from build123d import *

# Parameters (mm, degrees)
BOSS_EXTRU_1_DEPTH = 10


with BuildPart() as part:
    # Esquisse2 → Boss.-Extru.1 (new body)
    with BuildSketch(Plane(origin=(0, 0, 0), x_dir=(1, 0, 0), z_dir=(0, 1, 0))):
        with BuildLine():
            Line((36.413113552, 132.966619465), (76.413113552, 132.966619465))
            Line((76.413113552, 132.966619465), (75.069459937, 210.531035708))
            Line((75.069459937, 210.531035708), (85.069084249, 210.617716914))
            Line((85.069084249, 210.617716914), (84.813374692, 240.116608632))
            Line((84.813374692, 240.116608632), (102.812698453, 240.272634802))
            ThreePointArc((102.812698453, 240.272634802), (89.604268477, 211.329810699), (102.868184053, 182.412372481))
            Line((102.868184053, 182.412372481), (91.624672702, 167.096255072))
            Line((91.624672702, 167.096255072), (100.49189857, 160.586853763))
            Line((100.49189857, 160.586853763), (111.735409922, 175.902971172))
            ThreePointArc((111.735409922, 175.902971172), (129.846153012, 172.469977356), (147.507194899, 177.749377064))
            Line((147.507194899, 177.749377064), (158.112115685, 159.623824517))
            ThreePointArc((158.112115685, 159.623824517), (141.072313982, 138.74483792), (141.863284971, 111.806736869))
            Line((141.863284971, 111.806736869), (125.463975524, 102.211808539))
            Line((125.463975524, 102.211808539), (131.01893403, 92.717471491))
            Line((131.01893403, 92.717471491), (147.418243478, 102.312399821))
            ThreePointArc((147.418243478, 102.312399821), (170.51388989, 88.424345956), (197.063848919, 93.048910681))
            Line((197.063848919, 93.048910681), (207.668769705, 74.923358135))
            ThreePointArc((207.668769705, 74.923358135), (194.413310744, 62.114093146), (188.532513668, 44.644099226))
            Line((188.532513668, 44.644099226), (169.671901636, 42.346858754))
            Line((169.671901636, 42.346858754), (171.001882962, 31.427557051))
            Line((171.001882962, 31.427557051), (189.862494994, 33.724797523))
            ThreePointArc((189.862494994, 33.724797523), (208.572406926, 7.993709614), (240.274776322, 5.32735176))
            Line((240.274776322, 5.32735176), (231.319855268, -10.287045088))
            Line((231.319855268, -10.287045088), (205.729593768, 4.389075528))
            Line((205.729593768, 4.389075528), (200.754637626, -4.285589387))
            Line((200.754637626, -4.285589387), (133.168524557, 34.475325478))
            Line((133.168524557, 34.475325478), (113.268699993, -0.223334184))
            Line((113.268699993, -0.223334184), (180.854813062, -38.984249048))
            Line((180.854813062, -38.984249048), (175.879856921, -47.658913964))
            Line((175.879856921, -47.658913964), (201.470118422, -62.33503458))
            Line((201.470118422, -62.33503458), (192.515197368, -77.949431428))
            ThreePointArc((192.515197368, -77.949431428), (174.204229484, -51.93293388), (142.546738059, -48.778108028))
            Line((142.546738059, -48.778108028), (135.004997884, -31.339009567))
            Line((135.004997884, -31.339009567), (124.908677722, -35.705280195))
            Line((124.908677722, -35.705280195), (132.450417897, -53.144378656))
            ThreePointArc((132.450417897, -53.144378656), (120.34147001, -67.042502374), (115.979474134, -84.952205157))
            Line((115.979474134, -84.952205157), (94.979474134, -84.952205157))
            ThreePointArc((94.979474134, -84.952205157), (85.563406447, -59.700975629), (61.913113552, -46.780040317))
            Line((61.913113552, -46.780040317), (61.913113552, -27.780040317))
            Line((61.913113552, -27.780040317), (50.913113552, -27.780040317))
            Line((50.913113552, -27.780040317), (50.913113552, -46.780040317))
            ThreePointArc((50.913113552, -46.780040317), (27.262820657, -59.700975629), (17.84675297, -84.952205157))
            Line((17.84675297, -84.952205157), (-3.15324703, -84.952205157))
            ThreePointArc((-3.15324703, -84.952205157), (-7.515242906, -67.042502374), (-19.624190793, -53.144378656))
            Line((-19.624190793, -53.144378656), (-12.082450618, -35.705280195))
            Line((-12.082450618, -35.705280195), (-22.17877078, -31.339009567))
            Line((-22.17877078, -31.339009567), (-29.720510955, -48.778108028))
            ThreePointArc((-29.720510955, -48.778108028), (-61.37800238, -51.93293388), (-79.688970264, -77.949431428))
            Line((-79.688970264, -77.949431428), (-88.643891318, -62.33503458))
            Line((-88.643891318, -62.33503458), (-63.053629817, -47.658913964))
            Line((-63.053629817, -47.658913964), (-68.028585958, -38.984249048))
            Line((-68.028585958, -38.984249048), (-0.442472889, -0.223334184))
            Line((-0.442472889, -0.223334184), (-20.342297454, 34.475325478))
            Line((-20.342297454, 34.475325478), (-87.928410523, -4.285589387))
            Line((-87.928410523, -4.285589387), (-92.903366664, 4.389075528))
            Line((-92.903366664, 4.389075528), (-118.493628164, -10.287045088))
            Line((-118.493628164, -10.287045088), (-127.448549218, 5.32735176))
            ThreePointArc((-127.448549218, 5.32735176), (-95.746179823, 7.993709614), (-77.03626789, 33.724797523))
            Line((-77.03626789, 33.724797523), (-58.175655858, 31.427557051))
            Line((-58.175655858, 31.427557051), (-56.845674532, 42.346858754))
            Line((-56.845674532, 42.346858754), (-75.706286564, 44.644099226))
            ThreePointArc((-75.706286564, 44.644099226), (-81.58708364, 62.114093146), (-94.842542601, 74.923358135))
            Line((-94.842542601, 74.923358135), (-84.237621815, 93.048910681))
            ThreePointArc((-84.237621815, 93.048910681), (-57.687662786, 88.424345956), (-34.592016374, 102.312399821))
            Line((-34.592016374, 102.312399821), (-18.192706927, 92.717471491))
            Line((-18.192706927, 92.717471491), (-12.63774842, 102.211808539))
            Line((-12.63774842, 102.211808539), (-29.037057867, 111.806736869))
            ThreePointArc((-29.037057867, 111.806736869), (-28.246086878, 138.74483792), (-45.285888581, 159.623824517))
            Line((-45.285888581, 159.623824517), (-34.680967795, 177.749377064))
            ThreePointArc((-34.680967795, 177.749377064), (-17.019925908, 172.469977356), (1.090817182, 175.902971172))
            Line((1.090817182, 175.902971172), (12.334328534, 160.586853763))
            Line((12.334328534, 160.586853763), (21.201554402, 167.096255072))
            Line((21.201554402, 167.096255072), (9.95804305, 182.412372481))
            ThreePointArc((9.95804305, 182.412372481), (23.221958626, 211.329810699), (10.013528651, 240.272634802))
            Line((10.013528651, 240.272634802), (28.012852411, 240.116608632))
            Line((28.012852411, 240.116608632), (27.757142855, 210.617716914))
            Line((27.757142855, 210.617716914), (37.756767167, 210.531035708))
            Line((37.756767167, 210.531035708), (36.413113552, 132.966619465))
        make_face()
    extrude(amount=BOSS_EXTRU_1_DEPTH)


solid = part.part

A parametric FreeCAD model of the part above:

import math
import FreeCAD as App
import Part
import Sketcher
Q = App.Units.Quantity

doc = App.newDocument("Part")
body = doc.addObject("PartDesign::Body", "Body")

# Sketch on XZ plane
sketch1 = doc.addObject("Sketcher::SketchObject", "Sketch")
body.addObject(sketch1)
sketch1.AttachmentSupport = (doc.XZ_Plane, [""])
sketch1.MapMode = "FlatFace"
sketch1.addGeometry(Part.LineSegment(App.Vector(76.413114, -132.966619, 0), App.Vector(36.413114, -132.966619, 0)), False)
sketch1.addGeometry(Part.LineSegment(App.Vector(36.413114, -132.966619, 0), App.Vector(37.756767, -210.531036, 0)), False)
sketch1.addGeometry(Part.LineSegment(App.Vector(37.756767, -210.531036, 0), App.Vector(27.757143, -210.617717, 0)), False)
sketch1.addGeometry(Part.LineSegment(App.Vector(27.757143, -210.617717, 0), App.Vector(28.012852, -240.116609, 0)), False)
sketch1.addGeometry(Part.LineSegment(App.Vector(28.012852, -240.116609, 0), App.Vector(10.013529, -240.272635, 0)), False)
sketch1.addGeometry(Part.ArcOfCircle(Part.Circle(App.Vector(-15.012234, -211.366476, 0), App.Vector(0, 0, 1), 38.23421), math.radians(-49.115334), math.radians(49.225223)), False)
sketch1.addGeometry(Part.LineSegment(App.Vector(9.958043, -182.412372, 0), App.Vector(21.201554, -167.096255, 0)), False)
sketch1.addGeometry(Part.LineSegment(App.Vector(21.201554, -167.096255, 0), App.Vector(12.334329, -160.586854, 0)), False)
sketch1.addGeometry(Part.LineSegment(App.Vector(12.334329, -160.586854, 0), App.Vector(1.090817, -175.902971, 0)), False)
sketch1.addGeometry(Part.ArcOfCircle(Part.Circle(App.Vector(-15.012234, -211.366476, 0), App.Vector(0, 0, 1), 38.948279), math.radians(65.578442), math.radians(120.331102)), False)
sketch1.addGeometry(Part.LineSegment(App.Vector(-34.680968, -177.749377, 0), App.Vector(-45.285889, -159.623825, 0)), False)
sketch1.addGeometry(Part.ArcOfCircle(Part.Circle(App.Vector(-64.761755, -126.336368, 0), App.Vector(0, 0, 1), 38.566361), math.radians(-59.668898), math.radians(22.132121)), False)
sketch1.addGeometry(Part.LineSegment(App.Vector(-29.037058, -111.806737, 0), App.Vector(-12.637748, -102.211809, 0)), False)
sketch1.addGeometry(Part.LineSegment(App.Vector(-12.637748, -102.211809, 0), App.Vector(-18.192707, -92.717471, 0)), False)
sketch1.addGeometry(Part.LineSegment(App.Vector(-18.192707, -92.717471, 0), App.Vector(-34.592016, -102.3124, 0)), False)
sketch1.addGeometry(Part.ArcOfCircle(Part.Circle(App.Vector(-64.761755, -126.336368, 0), App.Vector(0, 0, 1), 38.566361), math.radians(38.530083), math.radians(120.331102)), False)
sketch1.addGeometry(Part.LineSegment(App.Vector(-84.237622, -93.048911, 0), App.Vector(-94.842543, -74.923358, 0)), False)
sketch1.addGeometry(Part.ArcOfCircle(Part.Circle(App.Vector(-114.511276, -41.306259, 0), App.Vector(0, 0, 1), 38.948279), math.radians(-59.668898), math.radians(-4.916238)), False)
sketch1.addGeometry(Part.LineSegment(App.Vector(-75.706287, -44.644099, 0), App.Vector(-56.845675, -42.346859, 0)), False)
sketch1.addGeometry(Part.LineSegment(App.Vector(-56.845675, -42.346859, 0), App.Vector(-58.175656, -31.427557, 0)), False)
sketch1.addGeometry(Part.LineSegment(App.Vector(-58.175656, -31.427557, 0), App.Vector(-77.036268, -33.724798, 0)), False)
sketch1.addGeometry(Part.ArcOfCircle(Part.Circle(App.Vector(-114.511276, -41.306259, 0), App.Vector(0, 0, 1), 38.23421), math.radians(11.436981), math.radians(109.777538)), False)
sketch1.addGeometry(Part.LineSegment(App.Vector(-127.448549, -5.327352, 0), App.Vector(-118.493628, 10.287045, 0)), False)
sketch1.addGeometry(Part.LineSegment(App.Vector(-118.493628, 10.287045, 0), App.Vector(-92.903367, -4.389076, 0)), False)
sketch1.addGeometry(Part.LineSegment(App.Vector(-92.903367, -4.389076, 0), App.Vector(-87.928411, 4.285589, 0)), False)
sketch1.addGeometry(Part.LineSegment(App.Vector(-87.928411, 4.285589, 0), App.Vector(-20.342297, -34.475325, 0)), False)
sketch1.addGeometry(Part.LineSegment(App.Vector(-20.342297, -34.475325, 0), App.Vector(-0.442473, 0.223334, 0)), False)
sketch1.addGeometry(Part.LineSegment(App.Vector(-0.442473, 0.223334, 0), App.Vector(-68.028586, 38.984249, 0)), False)
sketch1.addGeometry(Part.LineSegment(App.Vector(-68.028586, 38.984249, 0), App.Vector(-63.05363, 47.658914, 0)), False)
sketch1.addGeometry(Part.LineSegment(App.Vector(-63.05363, 47.658914, 0), App.Vector(-88.643891, 62.335035, 0)), False)
sketch1.addGeometry(Part.LineSegment(App.Vector(-88.643891, 62.335035, 0), App.Vector(-79.68897, 77.949431, 0)), False)
sketch1.addGeometry(Part.ArcOfCircle(Part.Circle(App.Vector(-42.101526, 84.952205, 0), App.Vector(0, 0, 1), 38.23421), math.radians(-169.446436), math.radians(-71.105879)), False)
sketch1.addGeometry(Part.LineSegment(App.Vector(-29.720511, 48.778108, 0), App.Vector(-22.178771, 31.33901, 0)), False)
sketch1.addGeometry(Part.LineSegment(App.Vector(-22.178771, 31.33901, 0), App.Vector(-12.082451, 35.70528, 0)), False)
sketch1.addGeometry(Part.LineSegment(App.Vector(-12.082451, 35.70528, 0), App.Vector(-19.624191, 53.144379, 0)), False)
sketch1.addGeometry(Part.ArcOfCircle(Part.Circle(App.Vector(-42.101526, 84.952205, 0), App.Vector(0, 0, 1), 38.948279), math.radians(-54.75266), math.radians(0)), False)
sketch1.addGeometry(Part.LineSegment(App.Vector(-3.153247, 84.952205, 0), App.Vector(17.846753, 84.952205, 0)), False)
sketch1.addGeometry(Part.ArcOfCircle(Part.Circle(App.Vector(56.413114, 84.952205, 0), App.Vector(0, 0, 1), 38.566361), math.radians(180), math.radians(261.801019)), False)
sketch1.addGeometry(Part.LineSegment(App.Vector(50.913114, 46.78004, 0), App.Vector(50.913114, 27.78004, 0)), False)
sketch1.addGeometry(Part.LineSegment(App.Vector(50.913114, 27.78004, 0), App.Vector(61.913114, 27.78004, 0)), False)
sketch1.addGeometry(Part.LineSegment(App.Vector(61.913114, 27.78004, 0), App.Vector(61.913114, 46.78004, 0)), False)
sketch1.addGeometry(Part.ArcOfCircle(Part.Circle(App.Vector(56.413114, 84.952205, 0), App.Vector(0, 0, 1), 38.566361), math.radians(-81.801019), math.radians(0)), False)
sketch1.addGeometry(Part.LineSegment(App.Vector(94.979474, 84.952205, 0), App.Vector(115.979474, 84.952205, 0)), False)
sketch1.addGeometry(Part.ArcOfCircle(Part.Circle(App.Vector(154.927753, 84.952205, 0), App.Vector(0, 0, 1), 38.948279), math.radians(-180), math.radians(-125.24734)), False)
sketch1.addGeometry(Part.LineSegment(App.Vector(132.450418, 53.144379, 0), App.Vector(124.908678, 35.70528, 0)), False)
sketch1.addGeometry(Part.LineSegment(App.Vector(124.908678, 35.70528, 0), App.Vector(135.004998, 31.33901, 0)), False)
sketch1.addGeometry(Part.LineSegment(App.Vector(135.004998, 31.33901, 0), App.Vector(142.546738, 48.778108, 0)), False)
sketch1.addGeometry(Part.ArcOfCircle(Part.Circle(App.Vector(154.927753, 84.952205, 0), App.Vector(0, 0, 1), 38.23421), math.radians(-108.894121), math.radians(-10.553564)), False)
sketch1.addGeometry(Part.LineSegment(App.Vector(192.515197, 77.949431, 0), App.Vector(201.470118, 62.335035, 0)), False)
sketch1.addGeometry(Part.LineSegment(App.Vector(201.470118, 62.335035, 0), App.Vector(175.879857, 47.658914, 0)), False)
sketch1.addGeometry(Part.LineSegment(App.Vector(175.879857, 47.658914, 0), App.Vector(180.854813, 38.984249, 0)), False)
sketch1.addGeometry(Part.LineSegment(App.Vector(180.854813, 38.984249, 0), App.Vector(113.2687, 0.223334, 0)), False)
sketch1.addGeometry(Part.LineSegment(App.Vector(113.2687, 0.223334, 0), App.Vector(133.168525, -34.475325, 0)), False)
sketch1.addGeometry(Part.LineSegment(App.Vector(133.168525, -34.475325, 0), App.Vector(200.754638, 4.285589, 0)), False)
sketch1.addGeometry(Part.LineSegment(App.Vector(200.754638, 4.285589, 0), App.Vector(205.729594, -4.389076, 0)), False)
sketch1.addGeometry(Part.LineSegment(App.Vector(205.729594, -4.389076, 0), App.Vector(231.319855, 10.287045, 0)), False)
sketch1.addGeometry(Part.LineSegment(App.Vector(231.319855, 10.287045, 0), App.Vector(240.274776, -5.327352, 0)), False)
sketch1.addGeometry(Part.ArcOfCircle(Part.Circle(App.Vector(227.337504, -41.306259, 0), App.Vector(0, 0, 1), 38.23421), math.radians(70.222462), math.radians(168.563019)), False)
sketch1.addGeometry(Part.LineSegment(App.Vector(189.862495, -33.724798, 0), App.Vector(171.001883, -31.427557, 0)), False)
sketch1.addGeometry(Part.LineSegment(App.Vector(171.001883, -31.427557, 0), App.Vector(169.671902, -42.346859, 0)), False)
sketch1.addGeometry(Part.LineSegment(App.Vector(169.671902, -42.346859, 0), App.Vector(188.532514, -44.644099, 0)), False)
sketch1.addGeometry(Part.ArcOfCircle(Part.Circle(App.Vector(227.337504, -41.306259, 0), App.Vector(0, 0, 1), 38.948279), math.radians(-175.083762), math.radians(-120.331102)), False)
sketch1.addGeometry(Part.LineSegment(App.Vector(207.66877, -74.923358, 0), App.Vector(197.063849, -93.048911, 0)), False)
sketch1.addGeometry(Part.ArcOfCircle(Part.Circle(App.Vector(177.587982, -126.336368, 0), App.Vector(0, 0, 1), 38.566361), math.radians(59.668898), math.radians(141.469917)), False)
sketch1.addGeometry(Part.LineSegment(App.Vector(147.418243, -102.3124, 0), App.Vector(131.018934, -92.717471, 0)), False)
sketch1.addGeometry(Part.LineSegment(App.Vector(131.018934, -92.717471, 0), App.Vector(125.463976, -102.211809, 0)), False)
sketch1.addGeometry(Part.LineSegment(App.Vector(125.463976, -102.211809, 0), App.Vector(141.863285, -111.806737, 0)), False)
sketch1.addGeometry(Part.ArcOfCircle(Part.Circle(App.Vector(177.587982, -126.336368, 0), App.Vector(0, 0, 1), 38.566361), math.radians(157.867879), math.radians(239.668898)), False)
sketch1.addGeometry(Part.LineSegment(App.Vector(158.112116, -159.623825, 0), App.Vector(147.507195, -177.749377, 0)), False)
sketch1.addGeometry(Part.ArcOfCircle(Part.Circle(App.Vector(127.838461, -211.366476, 0), App.Vector(0, 0, 1), 38.948279), math.radians(59.668898), math.radians(114.421558)), False)
sketch1.addGeometry(Part.LineSegment(App.Vector(111.73541, -175.902971, 0), App.Vector(100.491899, -160.586854, 0)), False)
sketch1.addGeometry(Part.LineSegment(App.Vector(100.491899, -160.586854, 0), App.Vector(91.624673, -167.096255, 0)), False)
sketch1.addGeometry(Part.LineSegment(App.Vector(91.624673, -167.096255, 0), App.Vector(102.868184, -182.412372, 0)), False)
sketch1.addGeometry(Part.ArcOfCircle(Part.Circle(App.Vector(127.838461, -211.366476, 0), App.Vector(0, 0, 1), 38.23421), math.radians(130.774777), math.radians(229.115334)), False)
sketch1.addGeometry(Part.LineSegment(App.Vector(102.812698, -240.272635, 0), App.Vector(84.813375, -240.116609, 0)), False)
sketch1.addGeometry(Part.LineSegment(App.Vector(84.813375, -240.116609, 0), App.Vector(85.069084, -210.617717, 0)), False)
sketch1.addGeometry(Part.LineSegment(App.Vector(85.069084, -210.617717, 0), App.Vector(75.06946, -210.531036, 0)), False)
sketch1.addGeometry(Part.LineSegment(App.Vector(75.06946, -210.531036, 0), App.Vector(76.413114, -132.966619, 0)), False)
sketch1.addConstraint(Sketcher.Constraint("Coincident", 0, 2, 1, 1))
sketch1.addConstraint(Sketcher.Constraint("Coincident", 1, 2, 2, 1))
sketch1.addConstraint(Sketcher.Constraint("Coincident", 2, 2, 3, 1))
sketch1.addConstraint(Sketcher.Constraint("Coincident", 3, 2, 4, 1))
sketch1.addConstraint(Sketcher.Constraint("Coincident", 4, 2, 5, 1))
sketch1.addConstraint(Sketcher.Constraint("Coincident", 5, 2, 6, 1))
sketch1.addConstraint(Sketcher.Constraint("Coincident", 6, 2, 7, 1))
sketch1.addConstraint(Sketcher.Constraint("Coincident", 7, 2, 8, 1))
sketch1.addConstraint(Sketcher.Constraint("Coincident", 8, 2, 9, 1))
sketch1.addConstraint(Sketcher.Constraint("Coincident", 9, 2, 10, 1))
sketch1.addConstraint(Sketcher.Constraint("Coincident", 10, 2, 11, 1))
sketch1.addConstraint(Sketcher.Constraint("Coincident", 11, 2, 12, 1))
sketch1.addConstraint(Sketcher.Constraint("Coincident", 12, 2, 13, 1))
sketch1.addConstraint(Sketcher.Constraint("Coincident", 13, 2, 14, 1))
sketch1.addConstraint(Sketcher.Constraint("Coincident", 14, 2, 15, 1))
sketch1.addConstraint(Sketcher.Constraint("Coincident", 15, 2, 16, 1))
sketch1.addConstraint(Sketcher.Constraint("Coincident", 16, 2, 17, 1))
sketch1.addConstraint(Sketcher.Constraint("Coincident", 17, 2, 18, 1))
sketch1.addConstraint(Sketcher.Constraint("Coincident", 18, 2, 19, 1))
sketch1.addConstraint(Sketcher.Constraint("Coincident", 19, 2, 20, 1))
sketch1.addConstraint(Sketcher.Constraint("Coincident", 20, 2, 21, 1))
sketch1.addConstraint(Sketcher.Constraint("Coincident", 21, 2, 22, 1))
sketch1.addConstraint(Sketcher.Constraint("Coincident", 22, 2, 23, 1))
sketch1.addConstraint(Sketcher.Constraint("Coincident", 23, 2, 24, 1))
sketch1.addConstraint(Sketcher.Constraint("Coincident", 24, 2, 25, 1))
sketch1.addConstraint(Sketcher.Constraint("Coincident", 25, 2, 26, 1))
sketch1.addConstraint(Sketcher.Constraint("Coincident", 26, 2, 27, 1))
sketch1.addConstraint(Sketcher.Constraint("Coincident", 27, 2, 28, 1))
sketch1.addConstraint(Sketcher.Constraint("Coincident", 28, 2, 29, 1))
sketch1.addConstraint(Sketcher.Constraint("Coincident", 29, 2, 30, 1))
sketch1.addConstraint(Sketcher.Constraint("Coincident", 30, 2, 31, 1))
sketch1.addConstraint(Sketcher.Constraint("Coincident", 31, 2, 32, 1))
sketch1.addConstraint(Sketcher.Constraint("Coincident", 32, 2, 33, 1))
sketch1.addConstraint(Sketcher.Constraint("Coincident", 33, 2, 34, 1))
sketch1.addConstraint(Sketcher.Constraint("Coincident", 34, 2, 35, 1))
sketch1.addConstraint(Sketcher.Constraint("Coincident", 35, 2, 36, 1))
sketch1.addConstraint(Sketcher.Constraint("Coincident", 36, 2, 37, 1))
sketch1.addConstraint(Sketcher.Constraint("Coincident", 37, 2, 38, 1))
sketch1.addConstraint(Sketcher.Constraint("Coincident", 38, 2, 39, 1))
sketch1.addConstraint(Sketcher.Constraint("Coincident", 39, 2, 40, 1))
sketch1.addConstraint(Sketcher.Constraint("Coincident", 40, 2, 41, 1))
sketch1.addConstraint(Sketcher.Constraint("Coincident", 41, 2, 42, 1))
sketch1.addConstraint(Sketcher.Constraint("Coincident", 42, 2, 43, 1))
sketch1.addConstraint(Sketcher.Constraint("Coincident", 43, 2, 44, 1))
sketch1.addConstraint(Sketcher.Constraint("Coincident", 44, 2, 45, 1))
sketch1.addConstraint(Sketcher.Constraint("Coincident", 45, 2, 46, 1))
sketch1.addConstraint(Sketcher.Constraint("Coincident", 46, 2, 47, 1))
sketch1.addConstraint(Sketcher.Constraint("Coincident", 47, 2, 48, 1))
sketch1.addConstraint(Sketcher.Constraint("Coincident", 48, 2, 49, 1))
sketch1.addConstraint(Sketcher.Constraint("Coincident", 49, 2, 50, 1))
sketch1.addConstraint(Sketcher.Constraint("Coincident", 50, 2, 51, 1))
sketch1.addConstraint(Sketcher.Constraint("Coincident", 51, 2, 52, 1))
sketch1.addConstraint(Sketcher.Constraint("Coincident", 52, 2, 53, 1))
sketch1.addConstraint(Sketcher.Constraint("Coincident", 53, 2, 54, 1))
sketch1.addConstraint(Sketcher.Constraint("Coincident", 54, 2, 55, 1))
sketch1.addConstraint(Sketcher.Constraint("Coincident", 55, 2, 56, 1))
sketch1.addConstraint(Sketcher.Constraint("Coincident", 56, 2, 57, 1))
sketch1.addConstraint(Sketcher.Constraint("Coincident", 57, 2, 58, 1))
sketch1.addConstraint(Sketcher.Constraint("Coincident", 58, 2, 59, 1))
sketch1.addConstraint(Sketcher.Constraint("Coincident", 59, 2, 60, 1))
sketch1.addConstraint(Sketcher.Constraint("Coincident", 60, 2, 61, 1))
sketch1.addConstraint(Sketcher.Constraint("Coincident", 61, 2, 62, 1))
sketch1.addConstraint(Sketcher.Constraint("Coincident", 62, 2, 63, 1))
sketch1.addConstraint(Sketcher.Constraint("Coincident", 63, 2, 64, 1))
sketch1.addConstraint(Sketcher.Constraint("Coincident", 64, 2, 65, 1))
sketch1.addConstraint(Sketcher.Constraint("Coincident", 65, 2, 66, 1))
sketch1.addConstraint(Sketcher.Constraint("Coincident", 66, 2, 67, 1))
sketch1.addConstraint(Sketcher.Constraint("Coincident", 67, 2, 68, 1))
sketch1.addConstraint(Sketcher.Constraint("Coincident", 68, 2, 69, 1))
sketch1.addConstraint(Sketcher.Constraint("Coincident", 69, 2, 70, 1))
sketch1.addConstraint(Sketcher.Constraint("Coincident", 70, 2, 71, 1))
sketch1.addConstraint(Sketcher.Constraint("Coincident", 71, 2, 72, 1))
sketch1.addConstraint(Sketcher.Constraint("Coincident", 72, 2, 73, 1))
sketch1.addConstraint(Sketcher.Constraint("Coincident", 73, 2, 74, 1))
sketch1.addConstraint(Sketcher.Constraint("Coincident", 74, 2, 75, 1))
sketch1.addConstraint(Sketcher.Constraint("Coincident", 75, 2, 76, 1))
sketch1.addConstraint(Sketcher.Constraint("Coincident", 76, 2, 77, 1))
sketch1.addConstraint(Sketcher.Constraint("Coincident", 77, 2, 0, 1))
sketch1.addConstraint(Sketcher.Constraint("Horizontal", 0))
sketch1.addConstraint(Sketcher.Constraint("Horizontal", 36))
sketch1.addConstraint(Sketcher.Constraint("Vertical", 38))
sketch1.addConstraint(Sketcher.Constraint("Horizontal", 39))
sketch1.addConstraint(Sketcher.Constraint("Vertical", 40))
sketch1.addConstraint(Sketcher.Constraint("Horizontal", 42))
sketch1.addConstraint(Sketcher.Constraint("Coincident", 9, 3, 5, 3))
sketch1.addConstraint(Sketcher.Constraint("Coincident", 15, 3, 11, 3))
sketch1.addConstraint(Sketcher.Constraint("Coincident", 21, 3, 17, 3))
sketch1.addConstraint(Sketcher.Constraint("Coincident", 35, 3, 31, 3))
sketch1.addConstraint(Sketcher.Constraint("Coincident", 41, 3, 37, 3))
sketch1.addConstraint(Sketcher.Constraint("Coincident", 47, 3, 43, 3))
sketch1.addConstraint(Sketcher.Constraint("Coincident", 61, 3, 57, 3))
sketch1.addConstraint(Sketcher.Constraint("Coincident", 67, 3, 63, 3))
sketch1.addConstraint(Sketcher.Constraint("Coincident", 73, 3, 69, 3))
sketch1.addConstraint(Sketcher.Constraint("Equal", 11, 15))
sketch1.addConstraint(Sketcher.Constraint("Equal", 9, 17))
sketch1.addConstraint(Sketcher.Constraint("Equal", 5, 21))
sketch1.addConstraint(Sketcher.Constraint("Equal", 21, 31))
sketch1.addConstraint(Sketcher.Constraint("Equal", 17, 35))
sketch1.addConstraint(Sketcher.Constraint("Equal", 15, 37))
sketch1.addConstraint(Sketcher.Constraint("Equal", 37, 41))
sketch1.addConstraint(Sketcher.Constraint("Equal", 35, 43))
sketch1.addConstraint(Sketcher.Constraint("Equal", 31, 47))
sketch1.addConstraint(Sketcher.Constraint("Equal", 47, 57))
sketch1.addConstraint(Sketcher.Constraint("Equal", 43, 61))
sketch1.addConstraint(Sketcher.Constraint("Equal", 41, 63))
sketch1.addConstraint(Sketcher.Constraint("Equal", 63, 67))
sketch1.addConstraint(Sketcher.Constraint("Equal", 61, 69))
sketch1.addConstraint(Sketcher.Constraint("Equal", 57, 73))
sketch1.addConstraint(Sketcher.Constraint("Perpendicular", 2, 3))
sketch1.addConstraint(Sketcher.Constraint("Perpendicular", 3, 4))
sketch1.addConstraint(Sketcher.Constraint("Perpendicular", 6, 7))
sketch1.addConstraint(Sketcher.Constraint("Perpendicular", 7, 8))
sketch1.addConstraint(Sketcher.Constraint("Perpendicular", 10, 12))
sketch1.addConstraint(Sketcher.Constraint("Perpendicular", 12, 13))
sketch1.addConstraint(Sketcher.Constraint("Perpendicular", 13, 14))
sketch1.addConstraint(Sketcher.Constraint("Perpendicular", 14, 16))
sketch1.addConstraint(Sketcher.Constraint("Perpendicular", 18, 19))
sketch1.addConstraint(Sketcher.Constraint("Perpendicular", 19, 20))
sketch1.addConstraint(Sketcher.Constraint("Perpendicular", 22, 23))
sketch1.addConstraint(Sketcher.Constraint("Perpendicular", 23, 24))
sketch1.addConstraint(Sketcher.Constraint("Perpendicular", 24, 25))
sketch1.addConstraint(Sketcher.Constraint("Perpendicular", 25, 26))
sketch1.addConstraint(Sketcher.Constraint("Perpendicular", 26, 27))
sketch1.addConstraint(Sketcher.Constraint("Perpendicular", 27, 28))
sketch1.addConstraint(Sketcher.Constraint("Perpendicular", 28, 29))
sketch1.addConstraint(Sketcher.Constraint("Perpendicular", 29, 30))
sketch1.addConstraint(Sketcher.Constraint("Perpendicular", 32, 33))
sketch1.addConstraint(Sketcher.Constraint("Perpendicular", 33, 34))
sketch1.addConstraint(Sketcher.Constraint("Perpendicular", 44, 45))
sketch1.addConstraint(Sketcher.Constraint("Perpendicular", 45, 46))
sketch1.addConstraint(Sketcher.Constraint("Perpendicular", 48, 49))
sketch1.addConstraint(Sketcher.Constraint("Perpendicular", 49, 50))
sketch1.addConstraint(Sketcher.Constraint("Perpendicular", 50, 51))
sketch1.addConstraint(Sketcher.Constraint("Perpendicular", 51, 52))
sketch1.addConstraint(Sketcher.Constraint("Perpendicular", 52, 53))
sketch1.addConstraint(Sketcher.Constraint("Perpendicular", 53, 54))
sketch1.addConstraint(Sketcher.Constraint("Perpendicular", 54, 55))
sketch1.addConstraint(Sketcher.Constraint("Perpendicular", 55, 56))
sketch1.addConstraint(Sketcher.Constraint("Perpendicular", 58, 59))
sketch1.addConstraint(Sketcher.Constraint("Perpendicular", 59, 60))
sketch1.addConstraint(Sketcher.Constraint("Perpendicular", 62, 64))
sketch1.addConstraint(Sketcher.Constraint("Perpendicular", 64, 65))
sketch1.addConstraint(Sketcher.Constraint("Perpendicular", 65, 66))
sketch1.addConstraint(Sketcher.Constraint("Perpendicular", 66, 68))
sketch1.addConstraint(Sketcher.Constraint("Perpendicular", 70, 71))
sketch1.addConstraint(Sketcher.Constraint("Perpendicular", 71, 72))
sketch1.addConstraint(Sketcher.Constraint("Perpendicular", 74, 75))
sketch1.addConstraint(Sketcher.Constraint("Perpendicular", 75, 76))
sketch1.addConstraint(Sketcher.Constraint("Horizontal", 35, 3, 37, 3))
sketch1.addConstraint(Sketcher.Constraint("Horizontal", 41, 3, 43, 3))
sketch1.addConstraint(Sketcher.Constraint("Horizontal", 21, 3, 57, 3))
sketch1.addConstraint(Sketcher.Constraint("Horizontal", 15, 3, 63, 3))
sketch1.addConstraint(Sketcher.Constraint("Horizontal", 9, 3, 69, 3))
sketch1.addConstraint(Sketcher.Constraint("Horizontal", 47, 3, 35, 2))
sketch1.addConstraint(Sketcher.Constraint("Horizontal", 37, 2, 40, 2))
sketch1.addConstraint(Sketcher.Constraint("Horizontal", 36, 2, 41, 2))
sketch1.addConstraint(Sketcher.Constraint("Horizontal", 34, 2, 43, 2))
sketch1.addConstraint(Sketcher.Constraint("Horizontal", 33, 2, 44, 2))
sketch1.addConstraint(Sketcher.Constraint("Horizontal", 32, 2, 45, 2))
sketch1.addConstraint(Sketcher.Constraint("Horizontal", 31, 2, 46, 2))
sketch1.addConstraint(Sketcher.Constraint("Horizontal", 30, 2, 47, 2))
sketch1.addConstraint(Sketcher.Constraint("Horizontal", 29, 2, 48, 2))
sketch1.addConstraint(Sketcher.Constraint("Horizontal", 28, 2, 49, 2))
sketch1.addConstraint(Sketcher.Constraint("Horizontal", 27, 2, 50, 2))
sketch1.addConstraint(Sketcher.Constraint("Horizontal", 26, 2, 51, 2))
sketch1.addConstraint(Sketcher.Constraint("Horizontal", 25, 2, 52, 2))
sketch1.addConstraint(Sketcher.Constraint("Horizontal", 24, 2, 53, 2))
sketch1.addConstraint(Sketcher.Constraint("Horizontal", 23, 2, 54, 2))
sketch1.addConstraint(Sketcher.Constraint("Horizontal", 22, 2, 55, 2))
sketch1.addConstraint(Sketcher.Constraint("Horizontal", 21, 2, 56, 2))
sketch1.addConstraint(Sketcher.Constraint("Horizontal", 20, 2, 57, 2))
sketch1.addConstraint(Sketcher.Constraint("Horizontal", 19, 2, 58, 2))
sketch1.addConstraint(Sketcher.Constraint("Horizontal", 18, 2, 59, 2))
sketch1.addConstraint(Sketcher.Constraint("Horizontal", 16, 2, 61, 2))
sketch1.addConstraint(Sketcher.Constraint("Horizontal", 15, 2, 62, 2))
sketch1.addConstraint(Sketcher.Constraint("Horizontal", 14, 2, 63, 2))
sketch1.addConstraint(Sketcher.Constraint("Horizontal", 13, 2, 64, 2))
sketch1.addConstraint(Sketcher.Constraint("Horizontal", 12, 2, 65, 2))
sketch1.addConstraint(Sketcher.Constraint("Horizontal", 11, 2, 66, 2))
sketch1.addConstraint(Sketcher.Constraint("Horizontal", 10, 2, 67, 2))
sketch1.addConstraint(Sketcher.Constraint("Horizontal", 9, 2, 68, 2))
sketch1.addConstraint(Sketcher.Constraint("Horizontal", 8, 2, 69, 2))
sketch1.addConstraint(Sketcher.Constraint("Horizontal", 7, 2, 70, 2))
sketch1.addConstraint(Sketcher.Constraint("Horizontal", 6, 2, 71, 2))
sketch1.addConstraint(Sketcher.Constraint("Horizontal", 5, 2, 72, 2))
sketch1.addConstraint(Sketcher.Constraint("Horizontal", 4, 2, 73, 2))
sketch1.addConstraint(Sketcher.Constraint("Horizontal", 3, 2, 74, 2))
sketch1.addConstraint(Sketcher.Constraint("Horizontal", 2, 2, 75, 2))
sketch1.addConstraint(Sketcher.Constraint("Horizontal", 1, 2, 76, 2))
sketch1.addConstraint(Sketcher.Constraint("Equal", 36, 42))
sketch1.addConstraint(Sketcher.Constraint("Equal", 6, 8))
sketch1.addConstraint(Sketcher.Constraint("Equal", 8, 12))
sketch1.addConstraint(Sketcher.Constraint("Equal", 7, 13))
sketch1.addConstraint(Sketcher.Constraint("Equal", 12, 14))
sketch1.addConstraint(Sketcher.Constraint("Equal", 10, 16))
sketch1.addConstraint(Sketcher.Constraint("Equal", 14, 18))
sketch1.addConstraint(Sketcher.Constraint("Equal", 13, 19))
sketch1.addConstraint(Sketcher.Constraint("Equal", 18, 20))
sketch1.addConstraint(Sketcher.Constraint("Equal", 4, 22))
sketch1.addConstraint(Sketcher.Constraint("Equal", 3, 23))
sketch1.addConstraint(Sketcher.Constraint("Equal", 2, 24))
sketch1.addConstraint(Sketcher.Constraint("Equal", 25, 27))
sketch1.addConstraint(Sketcher.Constraint("Equal", 24, 28))
sketch1.addConstraint(Sketcher.Constraint("Equal", 23, 29))
sketch1.addConstraint(Sketcher.Constraint("Equal", 22, 30))
sketch1.addConstraint(Sketcher.Constraint("Equal", 20, 32))
sketch1.addConstraint(Sketcher.Constraint("Equal", 19, 33))
sketch1.addConstraint(Sketcher.Constraint("Equal", 32, 34))
sketch1.addConstraint(Sketcher.Constraint("Equal", 30, 48))
sketch1.addConstraint(Sketcher.Constraint("Equal", 46, 58))
sketch1.addConstraint(Sketcher.Constraint("Equal", 56, 74))
sketch1.addConstraint(Sketcher.Constraint("Equal", 1, 77))
sketch1.addConstraint(Sketcher.Constraint("DistanceX", 0, 2, 0, 1, Q("40 mm")))
sketch1.addConstraint(Sketcher.Constraint("DistanceX", 36, 1, 36, 2, Q("21 mm")))
sketch1.addConstraint(Sketcher.Constraint("DistanceX", 39, 1, 39, 2, Q("11 mm")))
sketch1.addConstraint(Sketcher.Constraint("DistanceY", 38, 2, 38, 1, Q("19 mm")))
sketch1.addConstraint(Sketcher.Constraint("Distance", 2, Q("10 mm")))
sketch1.addConstraint(Sketcher.Constraint("Distance", 4, Q("18 mm")))
sketch1.addConstraint(Sketcher.Constraint("Distance", 6, Q("19 mm")))
sketch1.addConstraint(Sketcher.Constraint("Distance", 7, Q("11 mm")))
sketch1.addConstraint(Sketcher.Constraint("Distance", 10, Q("21 mm")))
sketch1.addConstraint(Sketcher.Constraint("Distance", 26, Q("40 mm")))
sketch1.addConstraint(Sketcher.Constraint("Distance", 3, Q("29.5 mm")))
sketch1.addConstraint(Sketcher.Constraint("Radius", 5, Q("38.23421 mm")))
sketch1.addConstraint(Sketcher.Constraint("Radius", 9, Q("38.948279 mm")))
sketch1.addConstraint(Sketcher.Constraint("Radius", 11, Q("38.566361 mm")))
sketch1.addConstraint(Sketcher.Constraint("DistanceY", 14, 2, -1, 1, Q("102.3124 mm")))
sketch1.addConstraint(Sketcher.Constraint("DistanceY", 17, 2, -1, 1, Q("44.644099 mm")))
sketch1.addConstraint(Sketcher.Constraint("DistanceX", -1, 1, 51, 2, Q("113.2687 mm")))
sketch1.addConstraint(Sketcher.Constraint("DistanceX", -1, 1, 59, 2, Q("169.671902 mm")))
sketch1.addConstraint(Sketcher.Constraint("DistanceX", -1, 1, 70, 2, Q("100.491899 mm")))
sketch1.addConstraint(Sketcher.Constraint("DistanceX", -1, 1, 73, 2, Q("102.812698 mm")))
sketch1.addConstraint(Sketcher.Constraint("DistanceY", 17, 3, -1, 1, Q("41.306259 mm")))
sketch1.addConstraint(Sketcher.Constraint("DistanceX", -1, 1, 69, 3, Q("127.838461 mm")))
sketch1.addConstraint(Sketcher.Constraint("DistanceY", 0, 2, -1, 1, Q("132.966619 mm")))
sketch1.addConstraint(Sketcher.Constraint("DistanceY", 3, 2, -1, 1, Q("240.116609 mm")))
sketch1.addConstraint(Sketcher.Constraint("DistanceX", -1, 1, 4, 2, Q("10.013529 mm")))
sketch1.addConstraint(Sketcher.Constraint("DistanceX", 10, 2, -1, 1, Q("45.285889 mm")))
sketch1.addConstraint(Sketcher.Constraint("DistanceX", 12, 2, -1, 1, Q("12.637748 mm")))
sketch1.addConstraint(Sketcher.Constraint("DistanceX", 15, 2, -1, 1, Q("84.237622 mm")))
sketch1.addConstraint(Sketcher.Constraint("DistanceX", 21, 2, -1, 1, Q("127.448549 mm")))
sketch1.addConstraint(Sketcher.Constraint("DistanceX", 22, 2, -1, 1, Q("118.493628 mm")))
sketch1.addConstraint(Sketcher.Constraint("DistanceX", 31, 2, -1, 1, Q("29.720511 mm")))
pad1 = doc.addObject("PartDesign::Pad", "Pad")
body.addObject(pad1)
pad1.Profile = sketch1
pad1.Length = 10
pad1.Reversed = True

doc.recompute()
